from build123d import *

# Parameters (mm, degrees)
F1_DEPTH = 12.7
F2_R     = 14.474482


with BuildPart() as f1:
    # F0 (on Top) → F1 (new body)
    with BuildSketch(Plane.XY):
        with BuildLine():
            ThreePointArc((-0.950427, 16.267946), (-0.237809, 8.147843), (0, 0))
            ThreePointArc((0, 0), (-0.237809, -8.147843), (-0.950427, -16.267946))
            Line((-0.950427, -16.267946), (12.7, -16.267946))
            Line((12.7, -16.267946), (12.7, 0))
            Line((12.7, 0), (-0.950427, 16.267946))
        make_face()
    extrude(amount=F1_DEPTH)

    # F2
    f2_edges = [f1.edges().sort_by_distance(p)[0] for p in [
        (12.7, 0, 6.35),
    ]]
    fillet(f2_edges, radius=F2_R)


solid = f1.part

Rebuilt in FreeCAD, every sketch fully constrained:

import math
import FreeCAD as App
import Part
import Sketcher
from FreeCAD import Vector
Q = App.Units.Quantity


def edges_at(feature, points):
    """Names of the edges that pass closest to the given points."""
    edges = feature.Shape.Edges
    near = lambda p: min(range(len(edges)), key=lambda i: edges[i].distToShape(Part.Vertex(*p))[0])
    return sorted({f"Edge{near(p) + 1}" for p in points})

doc = App.newDocument("Part")
body = doc.addObject("PartDesign::Body", "Body")

sketch1 = body.newObject("Sketcher::SketchObject", "Sketch")
sketch1.AttachmentSupport = (doc.getObject("XY_Plane"), [""])
sketch1.MapMode = "FlatFace"
sketch1.addGeometry(Part.ArcOfCircle(Part.Circle(Vector(-140, 0, 0), Vector(0, 0, 1), 140), math.radians(0), math.radians(6.69)), False)
sketch1.addGeometry(Part.ArcOfCircle(Part.Circle(Vector(-140, 0, 0), Vector(0, 0, 1), 140), math.radians(-6.69), math.radians(0)), False)
sketch1.addGeometry(Part.LineSegment(Vector(-1, -16, 0), Vector(13, -16, 0)), False)
sketch1.addGeometry(Part.LineSegment(Vector(13, -16, 0), Vector(13, 0, 0)), False)
sketch1.addGeometry(Part.LineSegment(Vector(13, 0, 0), Vector(-1, 16, 0)), False)
sketch1.addConstraint(Sketcher.Constraint("Tangent", 0, 1, 1, 2))
sketch1.addConstraint(Sketcher.Constraint("Coincident", 1, 1, 2, 1))
sketch1.addConstraint(Sketcher.Constraint("Coincident", 2, 2, 3, 1))
sketch1.addConstraint(Sketcher.Constraint("Coincident", 3, 2, 4, 1))
sketch1.addConstraint(Sketcher.Constraint("Coincident", 4, 2, 0, 2))
sketch1.addConstraint(Sketcher.Constraint("Horizontal", 2))
sketch1.addConstraint(Sketcher.Constraint("Vertical", 3))
sketch1.addConstraint(Sketcher.Constraint("Coincident", 0, 1, -1, 1))
sketch1.addConstraint(Sketcher.Constraint("Equal", 0, 1))
sketch1.addConstraint(Sketcher.Constraint("Symmetric", 1, 1, 4, 2, -1))
sketch1.addConstraint(Sketcher.Constraint("PointOnObject", 3, 2, -1))
sketch1.addConstraint(Sketcher.Constraint("Angle", 4, Q("129.999999 deg")))
sketch1.addConstraint(Sketcher.Constraint("DistanceX", -1, 1, 2, 2, Q("0.5 in")))
sketch1.addConstraint(Sketcher.Constraint("Radius", 0, Q("139.699944 mm")))
pad1 = body.newObject("PartDesign::Pad", "Pad")
pad1.Profile = sketch1
pad1.Length = Q("0.5 in")
doc.recompute()

fillet = body.newObject("PartDesign::Fillet", "Fillet")
fillet.Base = (pad1, edges_at(pad1, [(12.7, 0, 6.35)]))
fillet.Radius = 14.474482

doc.recompute()
